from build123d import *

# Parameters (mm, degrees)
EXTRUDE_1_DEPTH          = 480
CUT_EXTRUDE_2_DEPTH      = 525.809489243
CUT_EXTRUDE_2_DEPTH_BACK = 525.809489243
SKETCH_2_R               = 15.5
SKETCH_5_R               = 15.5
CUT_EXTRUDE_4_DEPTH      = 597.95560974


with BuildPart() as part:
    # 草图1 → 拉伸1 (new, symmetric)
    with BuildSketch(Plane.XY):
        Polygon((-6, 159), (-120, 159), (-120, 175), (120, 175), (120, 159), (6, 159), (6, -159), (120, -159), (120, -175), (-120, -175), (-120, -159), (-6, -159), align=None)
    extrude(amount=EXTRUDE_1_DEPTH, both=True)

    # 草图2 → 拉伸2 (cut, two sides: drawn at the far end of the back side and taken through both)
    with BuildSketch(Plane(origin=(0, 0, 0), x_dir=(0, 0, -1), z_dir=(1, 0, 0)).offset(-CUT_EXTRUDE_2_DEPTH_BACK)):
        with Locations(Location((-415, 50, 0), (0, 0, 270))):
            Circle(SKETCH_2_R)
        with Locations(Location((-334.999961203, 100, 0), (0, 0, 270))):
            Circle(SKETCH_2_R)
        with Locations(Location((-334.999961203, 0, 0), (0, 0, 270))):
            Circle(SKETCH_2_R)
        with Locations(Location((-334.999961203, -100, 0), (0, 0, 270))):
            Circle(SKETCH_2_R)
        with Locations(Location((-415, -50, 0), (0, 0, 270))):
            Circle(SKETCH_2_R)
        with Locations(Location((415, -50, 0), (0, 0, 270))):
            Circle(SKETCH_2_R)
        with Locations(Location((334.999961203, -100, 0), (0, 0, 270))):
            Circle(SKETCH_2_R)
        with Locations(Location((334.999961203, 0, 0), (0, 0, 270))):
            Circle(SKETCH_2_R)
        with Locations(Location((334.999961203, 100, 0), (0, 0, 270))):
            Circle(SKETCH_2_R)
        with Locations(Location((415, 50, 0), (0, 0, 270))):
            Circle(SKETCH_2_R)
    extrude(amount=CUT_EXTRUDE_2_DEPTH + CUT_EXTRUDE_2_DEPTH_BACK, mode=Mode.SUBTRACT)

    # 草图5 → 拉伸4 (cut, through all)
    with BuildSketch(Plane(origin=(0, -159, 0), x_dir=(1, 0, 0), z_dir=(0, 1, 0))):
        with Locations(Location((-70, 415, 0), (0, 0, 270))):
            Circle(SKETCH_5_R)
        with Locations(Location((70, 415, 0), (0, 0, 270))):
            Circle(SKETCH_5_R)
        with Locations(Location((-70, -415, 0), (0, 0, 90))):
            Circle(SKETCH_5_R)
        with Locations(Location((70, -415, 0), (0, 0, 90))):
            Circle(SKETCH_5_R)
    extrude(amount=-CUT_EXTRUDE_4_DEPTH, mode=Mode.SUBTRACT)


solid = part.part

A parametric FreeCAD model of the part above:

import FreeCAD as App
import Part
import Sketcher
Q = App.Units.Quantity


def add_polygon(sketch, points):
    """Adds a closed chain of lines whose ends are joined by coincident constraints."""
    first, n = sketch.GeometryCount, len(points)
    for a, b in zip(points, points[1:] + points[:1]):
        sketch.addGeometry(Part.LineSegment(App.Vector(*a, 0), App.Vector(*b, 0)), False)
    for i in range(n):
        sketch.addConstraint(Sketcher.Constraint("Coincident", first + i, 2, first + (i + 1) % n, 1))

doc = App.newDocument("Part")
params = doc.addObject("Spreadsheet::Sheet", "Params")
for row, (alias, value) in enumerate([
    ("sketch1_width", "114 mm"),
    ("sketch1_width2", "240 mm"),
    ("sketch1_height", "318 mm"),
    ("sketch1_height2", "16 mm"),
    ("pad1_length", "960 mm"),
    ("sketch2_diameter", "31 mm"),
    ("sketch3_diameter", "31 mm"),
], start=1):
    params.set(f"A{row}", alias)
    params.set(f"B{row}", "=" + value)
    params.setAlias(f"B{row}", alias)

body = doc.addObject("PartDesign::Body", "Body")

# Sketch on XY plane
sketch1 = body.newObject("Sketcher::SketchObject", "Sketch")
sketch1.AttachmentSupport = (doc.getObject("XY_Plane"), [""])
sketch1.MapMode = "FlatFace"
add_polygon(sketch1, [(-120, 159), (-6, 159), (-6, -159), (-120, -159), (-120, -175), (120, -175), (120, -159), (6, -159), (6, 159), (120, 159), (120, 175), (-120, 175)])  # lines 0-11
sketch1.addConstraint(Sketcher.Constraint("Horizontal", 0))
sketch1.addConstraint(Sketcher.Constraint("Vertical", 1))
sketch1.addConstraint(Sketcher.Constraint("Horizontal", 2))
sketch1.addConstraint(Sketcher.Constraint("Vertical", 3))
sketch1.addConstraint(Sketcher.Constraint("Horizontal", 4))
sketch1.addConstraint(Sketcher.Constraint("Vertical", 5))
sketch1.addConstraint(Sketcher.Constraint("Horizontal", 6))
sketch1.addConstraint(Sketcher.Constraint("Vertical", 7))
sketch1.addConstraint(Sketcher.Constraint("Horizontal", 8))
sketch1.addConstraint(Sketcher.Constraint("Vertical", 9))
sketch1.addConstraint(Sketcher.Constraint("Horizontal", 10))
sketch1.addConstraint(Sketcher.Constraint("Vertical", 11))
sketch1.addConstraint(Sketcher.Constraint("Symmetric", 0, 2, 6, 2, -1, 1))
sketch1.addConstraint(Sketcher.Constraint("Symmetric", 2, 2, 8, 2, -1, 1))
sketch1.addConstraint(Sketcher.Constraint("Symmetric", 4, 2, 10, 2, -1, 1))
sketch1.addConstraint(Sketcher.Constraint("Symmetric", 2, 2, 5, 2, -2))
sketch1.addConstraint(Sketcher.Constraint("DistanceX", 0, 1, 0, 2, Q("114 mm")))
sketch1.addConstraint(Sketcher.Constraint("DistanceX", 4, 1, 4, 2, Q("240 mm")))
sketch1.addConstraint(Sketcher.Constraint("DistanceY", 1, 2, 1, 1, Q("318 mm")))
sketch1.addConstraint(Sketcher.Constraint("DistanceY", 3, 2, 3, 1, Q("16 mm")))
sketch1.setExpression("Constraints[28]", "Params.sketch1_width")
sketch1.setExpression("Constraints[29]", "Params.sketch1_width2")
sketch1.setExpression("Constraints[30]", "Params.sketch1_height")
sketch1.setExpression("Constraints[31]", "Params.sketch1_height2")
pad1 = body.newObject("PartDesign::Pad", "Pad")
pad1.Profile = sketch1
pad1.setExpression("Length", "Params.pad1_length")
pad1.Midplane = True

# Sketch on YZ plane
sketch2 = body.newObject("Sketcher::SketchObject", "Sketch001")
sketch2.AttachmentSupport = (doc.getObject("YZ_Plane"), [""])
sketch2.MapMode = "FlatFace"
sketch2.addGeometry(Part.Circle(App.Vector(50, 415, 0), App.Vector(0, 0, 1), 15.5), False)
sketch2.addGeometry(Part.Circle(App.Vector(100, 334.999961, 0), App.Vector(0, 0, 1), 15.5), False)
sketch2.addGeometry(Part.Circle(App.Vector(0, 334.999961, 0), App.Vector(0, 0, 1), 15.5), False)
sketch2.addGeometry(Part.Circle(App.Vector(-100, 334.999961, 0), App.Vector(0, 0, 1), 15.5), False)
sketch2.addGeometry(Part.Circle(App.Vector(-50, 415, 0), App.Vector(0, 0, 1), 15.5), False)
sketch2.addGeometry(Part.Circle(App.Vector(-50, -415, 0), App.Vector(0, 0, 1), 15.5), False)
sketch2.addGeometry(Part.Circle(App.Vector(-100, -334.999961, 0), App.Vector(0, 0, 1), 15.5), False)
sketch2.addGeometry(Part.Circle(App.Vector(0, -334.999961, 0), App.Vector(0, 0, 1), 15.5), False)
sketch2.addGeometry(Part.Circle(App.Vector(100, -334.999961, 0), App.Vector(0, 0, 1), 15.5), False)
sketch2.addGeometry(Part.Circle(App.Vector(50, -415, 0), App.Vector(0, 0, 1), 15.5), False)
sketch2.addConstraint(Sketcher.Constraint("Equal", 0, 1))
sketch2.addConstraint(Sketcher.Constraint("Equal", 1, 2))
sketch2.addConstraint(Sketcher.Constraint("Equal", 2, 3))
sketch2.addConstraint(Sketcher.Constraint("Equal", 3, 4))
sketch2.addConstraint(Sketcher.Constraint("Equal", 4, 5))
sketch2.addConstraint(Sketcher.Constraint("Equal", 5, 6))
sketch2.addConstraint(Sketcher.Constraint("Equal", 6, 7))
sketch2.addConstraint(Sketcher.Constraint("Equal", 7, 8))
sketch2.addConstraint(Sketcher.Constraint("Equal", 8, 9))
sketch2.addConstraint(Sketcher.Constraint("Symmetric", 0, 3, 5, 3, -1, 1))
sketch2.addConstraint(Sketcher.Constraint("Symmetric", 1, 3, 6, 3, -1, 1))
sketch2.addConstraint(Sketcher.Constraint("Symmetric", 2, 3, 7, 3, -1, 1))
sketch2.addConstraint(Sketcher.Constraint("Symmetric", 3, 3, 8, 3, -1, 1))
sketch2.addConstraint(Sketcher.Constraint("Symmetric", 4, 3, 9, 3, -1, 1))
sketch2.addConstraint(Sketcher.Constraint("Symmetric", 1, 3, 3, 3, -2))
sketch2.addConstraint(Sketcher.Constraint("Symmetric", 0, 3, 4, 3, -2))
sketch2.addConstraint(Sketcher.Constraint("PointOnObject", 2, 3, -2))
sketch2.addConstraint(Sketcher.Constraint("Horizontal", 1, 3, 2, 3))
sketch2.addConstraint(Sketcher.Constraint("Diameter", 0, Q("31 mm")))
sketch2.addConstraint(Sketcher.Constraint("DistanceX", -1, 1, 0, 3, Q("50 mm")))
sketch2.addConstraint(Sketcher.Constraint("DistanceY", -1, 1, 0, 3, Q("415 mm")))
sketch2.addConstraint(Sketcher.Constraint("DistanceX", -1, 1, 1, 3, Q("100 mm")))
sketch2.addConstraint(Sketcher.Constraint("DistanceY", -1, 1, 1, 3, Q("334.999961 mm")))
sketch2.setExpression("Constraints[18]", "Params.sketch2_diameter")
pocket1 = body.newObject("PartDesign::Pocket", "Pocket")
pocket1.Profile = sketch2
pocket1.Type = "ThroughAll"
pocket1.Midplane = True

# Sketch on XZ plane
sketch3 = body.newObject("Sketcher::SketchObject", "Sketch002")
sketch3.AttachmentSupport = (doc.getObject("XZ_Plane"), [""])
sketch3.MapMode = "FlatFace"
sketch3.AttachmentOffset = App.Placement(App.Vector(0, 0, 159), App.Rotation())
sketch3.addGeometry(Part.Circle(App.Vector(-70, -415, 0), App.Vector(0, 0, 1), 15.5), False)
sketch3.addGeometry(Part.Circle(App.Vector(70, -415, 0), App.Vector(0, 0, 1), 15.5), False)
sketch3.addGeometry(Part.Circle(App.Vector(-70, 415, 0), App.Vector(0, 0, 1), 15.5), False)
sketch3.addGeometry(Part.Circle(App.Vector(70, 415, 0), App.Vector(0, 0, 1), 15.5), False)
sketch3.addConstraint(Sketcher.Constraint("Equal", 0, 1))
sketch3.addConstraint(Sketcher.Constraint("Equal", 1, 2))
sketch3.addConstraint(Sketcher.Constraint("Equal", 2, 3))
sketch3.addConstraint(Sketcher.Constraint("Symmetric", 1, 3, 2, 3, -1, 1))
sketch3.addConstraint(Sketcher.Constraint("Symmetric", 0, 3, 3, 3, -1, 1))
sketch3.addConstraint(Sketcher.Constraint("Symmetric", 0, 3, 1, 3, -2))
sketch3.addConstraint(Sketcher.Constraint("Diameter", 0, Q("31 mm")))
sketch3.addConstraint(Sketcher.Constraint("DistanceX", 0, 3, -1, 1, Q("70 mm")))
sketch3.addConstraint(Sketcher.Constraint("DistanceY", 0, 3, -1, 1, Q("415 mm")))
sketch3.setExpression("Constraints[6]", "Params.sketch3_diameter")
pocket2 = body.newObject("PartDesign::Pocket", "Pocket001")
pocket2.Profile = sketch3
pocket2.Type = "ThroughAll"
pocket2.Reversed = True

doc.recompute()
